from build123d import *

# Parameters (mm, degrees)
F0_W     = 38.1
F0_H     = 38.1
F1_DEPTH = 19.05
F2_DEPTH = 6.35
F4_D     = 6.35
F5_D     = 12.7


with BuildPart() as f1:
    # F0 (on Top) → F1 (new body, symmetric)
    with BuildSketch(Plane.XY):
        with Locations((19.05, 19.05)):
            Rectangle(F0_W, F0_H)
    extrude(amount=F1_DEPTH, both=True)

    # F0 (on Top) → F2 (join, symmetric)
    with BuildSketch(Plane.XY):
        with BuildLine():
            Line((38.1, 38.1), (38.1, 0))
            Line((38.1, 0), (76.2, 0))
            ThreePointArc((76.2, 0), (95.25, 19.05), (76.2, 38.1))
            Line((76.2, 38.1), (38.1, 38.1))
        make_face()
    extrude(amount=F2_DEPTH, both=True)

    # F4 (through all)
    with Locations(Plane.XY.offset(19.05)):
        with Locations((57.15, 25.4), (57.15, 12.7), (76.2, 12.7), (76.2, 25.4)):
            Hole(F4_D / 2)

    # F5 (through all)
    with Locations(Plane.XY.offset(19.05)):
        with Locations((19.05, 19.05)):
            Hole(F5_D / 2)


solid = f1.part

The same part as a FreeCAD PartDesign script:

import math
import FreeCAD as App
import Part
import Sketcher
from FreeCAD import Vector
Q = App.Units.Quantity


def add_polygon(sketch, points):
    """Adds a closed chain of lines whose ends are joined by coincident constraints."""
    first, n = sketch.GeometryCount, len(points)
    for a, b in zip(points, points[1:] + points[:1]):
        sketch.addGeometry(Part.LineSegment(App.Vector(*a, 0), App.Vector(*b, 0)), False)
    for i in range(n):
        sketch.addConstraint(Sketcher.Constraint("Coincident", first + i, 2, first + (i + 1) % n, 1))

doc = App.newDocument("Part")
body = doc.addObject("PartDesign::Body", "Body")

sketch1 = body.newObject("Sketcher::SketchObject", "Sketch")
sketch1.AttachmentSupport = (doc.getObject("XY_Plane"), [""])
sketch1.MapMode = "FlatFace"
add_polygon(sketch1, [(0, 38), (0, 0), (38, 0), (38, 38)])
sketch1.addConstraint([
    Sketcher.Constraint("Vertical", 0),
    Sketcher.Constraint("Horizontal", 1),
    Sketcher.Constraint("Vertical", 2),
    Sketcher.Constraint("Horizontal", 3),
    Sketcher.Constraint("Coincident", 0, 2, -1, 1),
    Sketcher.Constraint("Equal", 3, 0),
    Sketcher.Constraint("DistanceX", 1, 1, 1, 2, Q("1.5 in")),
])
pad1 = body.newObject("PartDesign::Pad", "Pad")
pad1.Profile = sketch1
pad1.Length = Q("1.5 in")
pad1.Midplane = True

sketch2 = body.newObject("Sketcher::SketchObject", "Sketch001")
sketch2.AttachmentSupport = (doc.getObject("XY_Plane"), [""])
sketch2.MapMode = "FlatFace"
sketch2.addGeometry([
    Part.LineSegment(Vector(38, 38, 0), Vector(38, 0, 0)),
    Part.LineSegment(Vector(38, 0, 0), Vector(76, 0, 0)),
    Part.ArcOfCircle(Part.Circle(Vector(76, 19, 0), Vector(0, 0, 1), 19), math.radians(-90), math.radians(90)),
    Part.LineSegment(Vector(76, 38, 0), Vector(38, 38, 0)),
], False)
sketch2.addConstraint([
    Sketcher.Constraint("Coincident", 0, 2, 1, 1),
    Sketcher.Constraint("Tangent", 1, 2, 2, 1),
    Sketcher.Constraint("Tangent", 2, 2, 3, 1),
    Sketcher.Constraint("Coincident", 3, 2, 0, 1),
    Sketcher.Constraint("Vertical", 0),
    Sketcher.Constraint("Horizontal", 1),
    Sketcher.Constraint("Horizontal", 3),
    Sketcher.Constraint("PointOnObject", 0, 2, -1),
    Sketcher.Constraint("Equal", 3, 0),
    Sketcher.Constraint("Radius", 2, Q("0.75 in")),
    Sketcher.Constraint("DistanceX", -1, 1, 2, 3, Q("3 in")),
])
pad2 = body.newObject("PartDesign::Pad", "Pad001")
pad2.Profile = sketch2
pad2.Length = Q("0.5 in")
pad2.Midplane = True

sketch3 = body.newObject("Sketcher::SketchObject", "Sketch002")
sketch3.AttachmentSupport = (doc.getObject("XY_Plane"), [""])
sketch3.MapMode = "FlatFace"
sketch3.AttachmentOffset = App.Placement(Vector(0, 0, 0.75 * 25.4), App.Rotation())
sketch3.addGeometry([
    Part.Circle(Vector(57.1, 25.4, 0), Vector(0, 0, 1), 3.2),
    Part.Circle(Vector(57.1, 12.7, 0), Vector(0, 0, 1), 3.2),
    Part.Circle(Vector(76.2, 12.7, 0), Vector(0, 0, 1), 3.2),
    Part.Circle(Vector(76.2, 25.4, 0), Vector(0, 0, 1), 3.2),
], False)
sketch3.addConstraint([
    Sketcher.Constraint("Equal", 0, 1),
    Sketcher.Constraint("Equal", 1, 2),
    Sketcher.Constraint("Equal", 2, 3),
    Sketcher.Constraint("Horizontal", 1, 3, 2, 3),
    Sketcher.Constraint("Horizontal", 0, 3, 3, 3),
    Sketcher.Constraint("Vertical", 0, 3, 1, 3),
    Sketcher.Constraint("Vertical", 2, 3, 3, 3),
    Sketcher.Constraint("Diameter", 0, Q("0.25 in")),
    Sketcher.Constraint("DistanceY", -1, 1, 0, 3, Q("1 in")),
    Sketcher.Constraint("DistanceX", -1, 1, 2, 3, Q("3 in")),
    Sketcher.Constraint("DistanceY", -1, 1, 1, 3, Q("0.5 in")),
    Sketcher.Constraint("DistanceX", -1, 1, 0, 3, Q("2.25 in")),
])
doc.recompute()
hole = body.newObject("PartDesign::Hole", "Hole")
hole.Profile = sketch3
hole.ThreadType = "None"
hole.Diameter = Q("0.25 in")
hole.DepthType = "ThroughAll"

sketch4 = body.newObject("Sketcher::SketchObject", "Sketch003")
sketch4.AttachmentSupport = (doc.getObject("XY_Plane"), [""])
sketch4.MapMode = "FlatFace"
sketch4.AttachmentOffset = App.Placement(Vector(0, 0, 0.75 * 25.4), App.Rotation())
sketch4.addGeometry(Part.Circle(Vector(19, 19, 0), Vector(0, 0, 1), 6), False)
sketch4.addConstraint([
    Sketcher.Constraint("Diameter", 0, Q("0.5 in")),
    Sketcher.Constraint("DistanceX", -1, 1, 0, 3, Q("0.75 in")),
    Sketcher.Constraint("DistanceY", -1, 1, 0, 3, Q("0.75 in")),
])
doc.recompute()
hole2 = body.newObject("PartDesign::Hole", "Hole001")
hole2.Profile = sketch4
hole2.ThreadType = "None"
hole2.Diameter = Q("0.5 in")
hole2.DepthType = "ThroughAll"

doc.recompute()
